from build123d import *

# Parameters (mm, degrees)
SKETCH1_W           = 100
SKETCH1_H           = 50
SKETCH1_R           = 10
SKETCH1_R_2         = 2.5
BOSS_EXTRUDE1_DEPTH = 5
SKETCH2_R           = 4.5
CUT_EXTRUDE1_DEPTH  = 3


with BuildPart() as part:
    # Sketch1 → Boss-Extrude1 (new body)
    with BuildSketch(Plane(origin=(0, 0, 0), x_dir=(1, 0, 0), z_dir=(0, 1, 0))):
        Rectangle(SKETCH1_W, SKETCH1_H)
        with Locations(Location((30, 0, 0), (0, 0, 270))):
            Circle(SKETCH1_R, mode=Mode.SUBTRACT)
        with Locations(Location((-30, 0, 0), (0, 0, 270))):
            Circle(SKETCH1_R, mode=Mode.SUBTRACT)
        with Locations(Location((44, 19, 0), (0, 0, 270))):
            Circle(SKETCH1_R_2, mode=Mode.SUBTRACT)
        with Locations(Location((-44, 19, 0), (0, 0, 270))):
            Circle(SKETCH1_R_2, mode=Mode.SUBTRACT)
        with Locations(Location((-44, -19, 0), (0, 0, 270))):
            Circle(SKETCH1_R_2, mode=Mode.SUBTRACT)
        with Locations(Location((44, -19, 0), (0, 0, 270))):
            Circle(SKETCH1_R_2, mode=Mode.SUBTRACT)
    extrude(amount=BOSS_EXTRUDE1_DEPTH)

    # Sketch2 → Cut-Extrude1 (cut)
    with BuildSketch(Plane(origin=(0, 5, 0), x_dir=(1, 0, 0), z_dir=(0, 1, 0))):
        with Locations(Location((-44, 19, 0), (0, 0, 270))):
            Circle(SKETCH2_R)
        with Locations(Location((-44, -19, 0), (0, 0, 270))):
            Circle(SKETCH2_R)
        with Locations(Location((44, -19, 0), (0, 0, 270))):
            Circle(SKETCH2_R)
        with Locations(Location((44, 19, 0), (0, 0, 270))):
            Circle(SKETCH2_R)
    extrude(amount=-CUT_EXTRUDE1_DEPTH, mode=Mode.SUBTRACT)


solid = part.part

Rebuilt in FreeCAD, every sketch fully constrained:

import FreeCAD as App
import Part
import Sketcher

V = App.Vector

doc = App.newDocument("Part")
params = doc.addObject("Spreadsheet::Sheet", "Params")
for row, (alias, value) in enumerate([
    ("sketch1_diameter", "5 mm"),
    ("sketch1_diameter2", "20 mm"),
    ("sketch1_width", "100 mm"),
    ("sketch1_height", "50 mm"),
    ("pad1_length", "5 mm"),
    ("sketch2_diameter", "9 mm"),
    ("pocket1_length", "3 mm"),
], start=1):
    params.set(f"A{row}", alias)
    params.set(f"B{row}", "=" + value)
    params.setAlias(f"B{row}", alias)

body = doc.addObject("PartDesign::Body", "Body")

# Sketch on XZ plane
sketch1 = body.newObject("Sketcher::SketchObject", "Sketch")
sketch1.AttachmentSupport = (doc.getObject("XZ_Plane"), [""])
sketch1.MapMode = "FlatFace"
sketch1.addGeometry([
    Part.LineSegment(V(-50, -25, 0), V(-50, 25, 0)),  # 0
    Part.LineSegment(V(-50, 25, 0), V(50, 25, 0)),  # 1
    Part.LineSegment(V(50, 25, 0), V(50, -25, 0)),  # 2
    Part.LineSegment(V(50, -25, 0), V(-50, -25, 0)),  # 3
    Part.Circle(V(-44, 19, 0), V(0, 0, 1), 2.5),  # 4
    Part.Circle(V(44, 19, 0), V(0, 0, 1), 2.5),  # 5
    Part.Circle(V(-30, 0, 0), V(0, 0, 1), 10),  # 6
    Part.Circle(V(-44, -19, 0), V(0, 0, 1), 2.5),  # 7
    Part.Circle(V(30, 0, 0), V(0, 0, 1), 10),  # 8
    Part.Circle(V(44, -19, 0), V(0, 0, 1), 2.5),  # 9
], False)
sketch1.addConstraint([
    Sketcher.Constraint("Coincident", 0, 2, 1, 1),
    Sketcher.Constraint("Coincident", 1, 2, 2, 1),
    Sketcher.Constraint("Coincident", 2, 2, 3, 1),
    Sketcher.Constraint("Coincident", 3, 2, 0, 1),
    Sketcher.Constraint("Vertical", 0),
    Sketcher.Constraint("Horizontal", 1),
    Sketcher.Constraint("Vertical", 2),
    Sketcher.Constraint("Horizontal", 3),
    Sketcher.Constraint("Equal", 4, 5),
    Sketcher.Constraint("Equal", 5, 7),
    Sketcher.Constraint("Equal", 6, 8),
    Sketcher.Constraint("Equal", 7, 9),
    Sketcher.Constraint("Symmetric", 5, 3, 7, 3, -1, 1),
    Sketcher.Constraint("Symmetric", 6, 3, 8, 3, -1, 1),
    Sketcher.Constraint("Symmetric", 4, 3, 9, 3, -1, 1),
    Sketcher.Constraint("Symmetric", 0, 2, 2, 2, -1, 1),
    Sketcher.Constraint("Symmetric", 4, 3, 5, 3, -2),
    Sketcher.Constraint("PointOnObject", 6, 3, -1),
    Sketcher.Constraint("Diameter", 4, 5.0),
    Sketcher.Constraint("Diameter", 6, 20.0),
    Sketcher.Constraint("DistanceX", 1, 1, 1, 2, 100.0),
    Sketcher.Constraint("DistanceY", 0, 1, 0, 2, 50.0),
    Sketcher.Constraint("DistanceX", 4, 3, -1, 1, 44.0),
    Sketcher.Constraint("DistanceY", -1, 1, 4, 3, 19.0),
    Sketcher.Constraint("DistanceX", 6, 3, -1, 1, 30.0),
])
sketch1.setExpression("Constraints[18]", "Params.sketch1_diameter")
sketch1.setExpression("Constraints[19]", "Params.sketch1_diameter2")
sketch1.setExpression("Constraints[20]", "Params.sketch1_width")
sketch1.setExpression("Constraints[21]", "Params.sketch1_height")
pad1 = body.newObject("PartDesign::Pad", "Pad")
pad1.Profile = sketch1
pad1.setExpression("Length", "Params.pad1_length")
pad1.Reversed = True

# Sketch on XZ plane
sketch2 = body.newObject("Sketcher::SketchObject", "Sketch001")
sketch2.AttachmentSupport = (doc.getObject("XZ_Plane"), [""])
sketch2.MapMode = "FlatFace"
sketch2.AttachmentOffset = App.Placement(V(0, 0, -5), App.Rotation())
sketch2.addGeometry([
    Part.Circle(V(-44, -19, 0), V(0, 0, 1), 4.5),
    Part.Circle(V(-44, 19, 0), V(0, 0, 1), 4.5),
    Part.Circle(V(44, 19, 0), V(0, 0, 1), 4.5),
    Part.Circle(V(44, -19, 0), V(0, 0, 1), 4.5),
], False)
sketch2.addConstraint([
    Sketcher.Constraint("Equal", 0, 1),
    Sketcher.Constraint("Equal", 1, 2),
    Sketcher.Constraint("Equal", 2, 3),
    Sketcher.Constraint("Symmetric", 0, 3, 2, 3, -1, 1),
    Sketcher.Constraint("Symmetric", 1, 3, 3, 3, -1, 1),
    Sketcher.Constraint("Symmetric", 1, 3, 2, 3, -2),
    Sketcher.Constraint("Diameter", 0, 9.0),
    Sketcher.Constraint("DistanceX", 0, 3, -1, 1, 44.0),
    Sketcher.Constraint("DistanceY", 0, 3, -1, 1, 19.0),
])
sketch2.setExpression("Constraints[6]", "Params.sketch2_diameter")
pocket1 = body.newObject("PartDesign::Pocket", "Pocket")
pocket1.Profile = sketch2
pocket1.setExpression("Length", "Params.pocket1_length")
pocket1.Reversed = True

doc.recompute()
